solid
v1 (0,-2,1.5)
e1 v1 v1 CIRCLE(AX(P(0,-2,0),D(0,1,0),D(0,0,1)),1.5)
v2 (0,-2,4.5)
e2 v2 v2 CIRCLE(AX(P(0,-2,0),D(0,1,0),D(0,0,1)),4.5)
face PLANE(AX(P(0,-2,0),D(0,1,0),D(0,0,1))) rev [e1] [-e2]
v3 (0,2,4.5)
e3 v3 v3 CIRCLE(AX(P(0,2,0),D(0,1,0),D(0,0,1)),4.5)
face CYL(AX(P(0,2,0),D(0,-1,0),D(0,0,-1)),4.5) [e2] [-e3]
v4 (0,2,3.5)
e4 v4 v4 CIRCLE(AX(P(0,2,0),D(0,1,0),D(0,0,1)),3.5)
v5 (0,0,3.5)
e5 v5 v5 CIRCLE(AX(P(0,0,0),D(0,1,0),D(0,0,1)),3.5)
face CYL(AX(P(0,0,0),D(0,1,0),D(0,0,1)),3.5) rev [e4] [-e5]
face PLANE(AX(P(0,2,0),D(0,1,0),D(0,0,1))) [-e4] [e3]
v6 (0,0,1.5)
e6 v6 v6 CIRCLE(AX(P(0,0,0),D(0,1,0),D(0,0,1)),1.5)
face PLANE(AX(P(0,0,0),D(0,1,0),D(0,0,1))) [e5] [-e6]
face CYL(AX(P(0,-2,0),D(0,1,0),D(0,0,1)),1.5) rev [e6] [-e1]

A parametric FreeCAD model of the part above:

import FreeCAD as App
import Part
import Sketcher
from FreeCAD import Vector

doc = App.newDocument("Part")
body = doc.addObject("PartDesign::Body", "Body")

sketch1 = doc.addObject("Sketcher::SketchObject", "Sketch")
body.addObject(sketch1)
sketch1.AttachmentSupport = (doc.XZ_Plane, [""])
sketch1.MapMode = "FlatFace"
sketch1.addGeometry(Part.Circle(Vector(0, 0, 0), Vector(0, 0, 1), 4.5), False)
sketch1.addConstraint(Sketcher.Constraint("Coincident", 0, 3, -1, 1))
sketch1.addConstraint(Sketcher.Constraint("Diameter", 0, 9.0))
pad1 = doc.addObject("PartDesign::Pad", "Pad")
body.addObject(pad1)
pad1.Profile = sketch1
pad1.Length = 4
pad1.Midplane = True

sketch2 = doc.addObject("Sketcher::SketchObject", "Sketch001")
body.addObject(sketch2)
sketch2.AttachmentSupport = (doc.XZ_Plane, [""])
sketch2.MapMode = "FlatFace"
sketch2.AttachmentOffset = App.Placement(Vector(0, 0, -2), App.Rotation())
sketch2.addGeometry(Part.Circle(Vector(0, 0, 0), Vector(0, 0, 1), 3.5), False)
sketch2.addConstraint(Sketcher.Constraint("Coincident", 0, 3, -1, 1))
sketch2.addConstraint(Sketcher.Constraint("Diameter", 0, 7.0))
pocket1 = doc.addObject("PartDesign::Pocket", "Pocket")
body.addObject(pocket1)
pocket1.Profile = sketch2
pocket1.Length = 2
pocket1.Reversed = True

sketch3 = doc.addObject("Sketcher::SketchObject", "Sketch002")
body.addObject(sketch3)
sketch3.AttachmentSupport = (doc.XZ_Plane, [""])
sketch3.MapMode = "FlatFace"
sketch3.addGeometry(Part.Circle(Vector(0, 0, 0), Vector(0, 0, 1), 1.5), False)
sketch3.addConstraint(Sketcher.Constraint("Coincident", 0, 3, -1, 1))
sketch3.addConstraint(Sketcher.Constraint("Diameter", 0, 3.0))
pocket2 = doc.addObject("PartDesign::Pocket", "Pocket001")
body.addObject(pocket2)
pocket2.Profile = sketch3
pocket2.Type = "ThroughAll"
pocket2.Reversed = True

doc.recompute()
